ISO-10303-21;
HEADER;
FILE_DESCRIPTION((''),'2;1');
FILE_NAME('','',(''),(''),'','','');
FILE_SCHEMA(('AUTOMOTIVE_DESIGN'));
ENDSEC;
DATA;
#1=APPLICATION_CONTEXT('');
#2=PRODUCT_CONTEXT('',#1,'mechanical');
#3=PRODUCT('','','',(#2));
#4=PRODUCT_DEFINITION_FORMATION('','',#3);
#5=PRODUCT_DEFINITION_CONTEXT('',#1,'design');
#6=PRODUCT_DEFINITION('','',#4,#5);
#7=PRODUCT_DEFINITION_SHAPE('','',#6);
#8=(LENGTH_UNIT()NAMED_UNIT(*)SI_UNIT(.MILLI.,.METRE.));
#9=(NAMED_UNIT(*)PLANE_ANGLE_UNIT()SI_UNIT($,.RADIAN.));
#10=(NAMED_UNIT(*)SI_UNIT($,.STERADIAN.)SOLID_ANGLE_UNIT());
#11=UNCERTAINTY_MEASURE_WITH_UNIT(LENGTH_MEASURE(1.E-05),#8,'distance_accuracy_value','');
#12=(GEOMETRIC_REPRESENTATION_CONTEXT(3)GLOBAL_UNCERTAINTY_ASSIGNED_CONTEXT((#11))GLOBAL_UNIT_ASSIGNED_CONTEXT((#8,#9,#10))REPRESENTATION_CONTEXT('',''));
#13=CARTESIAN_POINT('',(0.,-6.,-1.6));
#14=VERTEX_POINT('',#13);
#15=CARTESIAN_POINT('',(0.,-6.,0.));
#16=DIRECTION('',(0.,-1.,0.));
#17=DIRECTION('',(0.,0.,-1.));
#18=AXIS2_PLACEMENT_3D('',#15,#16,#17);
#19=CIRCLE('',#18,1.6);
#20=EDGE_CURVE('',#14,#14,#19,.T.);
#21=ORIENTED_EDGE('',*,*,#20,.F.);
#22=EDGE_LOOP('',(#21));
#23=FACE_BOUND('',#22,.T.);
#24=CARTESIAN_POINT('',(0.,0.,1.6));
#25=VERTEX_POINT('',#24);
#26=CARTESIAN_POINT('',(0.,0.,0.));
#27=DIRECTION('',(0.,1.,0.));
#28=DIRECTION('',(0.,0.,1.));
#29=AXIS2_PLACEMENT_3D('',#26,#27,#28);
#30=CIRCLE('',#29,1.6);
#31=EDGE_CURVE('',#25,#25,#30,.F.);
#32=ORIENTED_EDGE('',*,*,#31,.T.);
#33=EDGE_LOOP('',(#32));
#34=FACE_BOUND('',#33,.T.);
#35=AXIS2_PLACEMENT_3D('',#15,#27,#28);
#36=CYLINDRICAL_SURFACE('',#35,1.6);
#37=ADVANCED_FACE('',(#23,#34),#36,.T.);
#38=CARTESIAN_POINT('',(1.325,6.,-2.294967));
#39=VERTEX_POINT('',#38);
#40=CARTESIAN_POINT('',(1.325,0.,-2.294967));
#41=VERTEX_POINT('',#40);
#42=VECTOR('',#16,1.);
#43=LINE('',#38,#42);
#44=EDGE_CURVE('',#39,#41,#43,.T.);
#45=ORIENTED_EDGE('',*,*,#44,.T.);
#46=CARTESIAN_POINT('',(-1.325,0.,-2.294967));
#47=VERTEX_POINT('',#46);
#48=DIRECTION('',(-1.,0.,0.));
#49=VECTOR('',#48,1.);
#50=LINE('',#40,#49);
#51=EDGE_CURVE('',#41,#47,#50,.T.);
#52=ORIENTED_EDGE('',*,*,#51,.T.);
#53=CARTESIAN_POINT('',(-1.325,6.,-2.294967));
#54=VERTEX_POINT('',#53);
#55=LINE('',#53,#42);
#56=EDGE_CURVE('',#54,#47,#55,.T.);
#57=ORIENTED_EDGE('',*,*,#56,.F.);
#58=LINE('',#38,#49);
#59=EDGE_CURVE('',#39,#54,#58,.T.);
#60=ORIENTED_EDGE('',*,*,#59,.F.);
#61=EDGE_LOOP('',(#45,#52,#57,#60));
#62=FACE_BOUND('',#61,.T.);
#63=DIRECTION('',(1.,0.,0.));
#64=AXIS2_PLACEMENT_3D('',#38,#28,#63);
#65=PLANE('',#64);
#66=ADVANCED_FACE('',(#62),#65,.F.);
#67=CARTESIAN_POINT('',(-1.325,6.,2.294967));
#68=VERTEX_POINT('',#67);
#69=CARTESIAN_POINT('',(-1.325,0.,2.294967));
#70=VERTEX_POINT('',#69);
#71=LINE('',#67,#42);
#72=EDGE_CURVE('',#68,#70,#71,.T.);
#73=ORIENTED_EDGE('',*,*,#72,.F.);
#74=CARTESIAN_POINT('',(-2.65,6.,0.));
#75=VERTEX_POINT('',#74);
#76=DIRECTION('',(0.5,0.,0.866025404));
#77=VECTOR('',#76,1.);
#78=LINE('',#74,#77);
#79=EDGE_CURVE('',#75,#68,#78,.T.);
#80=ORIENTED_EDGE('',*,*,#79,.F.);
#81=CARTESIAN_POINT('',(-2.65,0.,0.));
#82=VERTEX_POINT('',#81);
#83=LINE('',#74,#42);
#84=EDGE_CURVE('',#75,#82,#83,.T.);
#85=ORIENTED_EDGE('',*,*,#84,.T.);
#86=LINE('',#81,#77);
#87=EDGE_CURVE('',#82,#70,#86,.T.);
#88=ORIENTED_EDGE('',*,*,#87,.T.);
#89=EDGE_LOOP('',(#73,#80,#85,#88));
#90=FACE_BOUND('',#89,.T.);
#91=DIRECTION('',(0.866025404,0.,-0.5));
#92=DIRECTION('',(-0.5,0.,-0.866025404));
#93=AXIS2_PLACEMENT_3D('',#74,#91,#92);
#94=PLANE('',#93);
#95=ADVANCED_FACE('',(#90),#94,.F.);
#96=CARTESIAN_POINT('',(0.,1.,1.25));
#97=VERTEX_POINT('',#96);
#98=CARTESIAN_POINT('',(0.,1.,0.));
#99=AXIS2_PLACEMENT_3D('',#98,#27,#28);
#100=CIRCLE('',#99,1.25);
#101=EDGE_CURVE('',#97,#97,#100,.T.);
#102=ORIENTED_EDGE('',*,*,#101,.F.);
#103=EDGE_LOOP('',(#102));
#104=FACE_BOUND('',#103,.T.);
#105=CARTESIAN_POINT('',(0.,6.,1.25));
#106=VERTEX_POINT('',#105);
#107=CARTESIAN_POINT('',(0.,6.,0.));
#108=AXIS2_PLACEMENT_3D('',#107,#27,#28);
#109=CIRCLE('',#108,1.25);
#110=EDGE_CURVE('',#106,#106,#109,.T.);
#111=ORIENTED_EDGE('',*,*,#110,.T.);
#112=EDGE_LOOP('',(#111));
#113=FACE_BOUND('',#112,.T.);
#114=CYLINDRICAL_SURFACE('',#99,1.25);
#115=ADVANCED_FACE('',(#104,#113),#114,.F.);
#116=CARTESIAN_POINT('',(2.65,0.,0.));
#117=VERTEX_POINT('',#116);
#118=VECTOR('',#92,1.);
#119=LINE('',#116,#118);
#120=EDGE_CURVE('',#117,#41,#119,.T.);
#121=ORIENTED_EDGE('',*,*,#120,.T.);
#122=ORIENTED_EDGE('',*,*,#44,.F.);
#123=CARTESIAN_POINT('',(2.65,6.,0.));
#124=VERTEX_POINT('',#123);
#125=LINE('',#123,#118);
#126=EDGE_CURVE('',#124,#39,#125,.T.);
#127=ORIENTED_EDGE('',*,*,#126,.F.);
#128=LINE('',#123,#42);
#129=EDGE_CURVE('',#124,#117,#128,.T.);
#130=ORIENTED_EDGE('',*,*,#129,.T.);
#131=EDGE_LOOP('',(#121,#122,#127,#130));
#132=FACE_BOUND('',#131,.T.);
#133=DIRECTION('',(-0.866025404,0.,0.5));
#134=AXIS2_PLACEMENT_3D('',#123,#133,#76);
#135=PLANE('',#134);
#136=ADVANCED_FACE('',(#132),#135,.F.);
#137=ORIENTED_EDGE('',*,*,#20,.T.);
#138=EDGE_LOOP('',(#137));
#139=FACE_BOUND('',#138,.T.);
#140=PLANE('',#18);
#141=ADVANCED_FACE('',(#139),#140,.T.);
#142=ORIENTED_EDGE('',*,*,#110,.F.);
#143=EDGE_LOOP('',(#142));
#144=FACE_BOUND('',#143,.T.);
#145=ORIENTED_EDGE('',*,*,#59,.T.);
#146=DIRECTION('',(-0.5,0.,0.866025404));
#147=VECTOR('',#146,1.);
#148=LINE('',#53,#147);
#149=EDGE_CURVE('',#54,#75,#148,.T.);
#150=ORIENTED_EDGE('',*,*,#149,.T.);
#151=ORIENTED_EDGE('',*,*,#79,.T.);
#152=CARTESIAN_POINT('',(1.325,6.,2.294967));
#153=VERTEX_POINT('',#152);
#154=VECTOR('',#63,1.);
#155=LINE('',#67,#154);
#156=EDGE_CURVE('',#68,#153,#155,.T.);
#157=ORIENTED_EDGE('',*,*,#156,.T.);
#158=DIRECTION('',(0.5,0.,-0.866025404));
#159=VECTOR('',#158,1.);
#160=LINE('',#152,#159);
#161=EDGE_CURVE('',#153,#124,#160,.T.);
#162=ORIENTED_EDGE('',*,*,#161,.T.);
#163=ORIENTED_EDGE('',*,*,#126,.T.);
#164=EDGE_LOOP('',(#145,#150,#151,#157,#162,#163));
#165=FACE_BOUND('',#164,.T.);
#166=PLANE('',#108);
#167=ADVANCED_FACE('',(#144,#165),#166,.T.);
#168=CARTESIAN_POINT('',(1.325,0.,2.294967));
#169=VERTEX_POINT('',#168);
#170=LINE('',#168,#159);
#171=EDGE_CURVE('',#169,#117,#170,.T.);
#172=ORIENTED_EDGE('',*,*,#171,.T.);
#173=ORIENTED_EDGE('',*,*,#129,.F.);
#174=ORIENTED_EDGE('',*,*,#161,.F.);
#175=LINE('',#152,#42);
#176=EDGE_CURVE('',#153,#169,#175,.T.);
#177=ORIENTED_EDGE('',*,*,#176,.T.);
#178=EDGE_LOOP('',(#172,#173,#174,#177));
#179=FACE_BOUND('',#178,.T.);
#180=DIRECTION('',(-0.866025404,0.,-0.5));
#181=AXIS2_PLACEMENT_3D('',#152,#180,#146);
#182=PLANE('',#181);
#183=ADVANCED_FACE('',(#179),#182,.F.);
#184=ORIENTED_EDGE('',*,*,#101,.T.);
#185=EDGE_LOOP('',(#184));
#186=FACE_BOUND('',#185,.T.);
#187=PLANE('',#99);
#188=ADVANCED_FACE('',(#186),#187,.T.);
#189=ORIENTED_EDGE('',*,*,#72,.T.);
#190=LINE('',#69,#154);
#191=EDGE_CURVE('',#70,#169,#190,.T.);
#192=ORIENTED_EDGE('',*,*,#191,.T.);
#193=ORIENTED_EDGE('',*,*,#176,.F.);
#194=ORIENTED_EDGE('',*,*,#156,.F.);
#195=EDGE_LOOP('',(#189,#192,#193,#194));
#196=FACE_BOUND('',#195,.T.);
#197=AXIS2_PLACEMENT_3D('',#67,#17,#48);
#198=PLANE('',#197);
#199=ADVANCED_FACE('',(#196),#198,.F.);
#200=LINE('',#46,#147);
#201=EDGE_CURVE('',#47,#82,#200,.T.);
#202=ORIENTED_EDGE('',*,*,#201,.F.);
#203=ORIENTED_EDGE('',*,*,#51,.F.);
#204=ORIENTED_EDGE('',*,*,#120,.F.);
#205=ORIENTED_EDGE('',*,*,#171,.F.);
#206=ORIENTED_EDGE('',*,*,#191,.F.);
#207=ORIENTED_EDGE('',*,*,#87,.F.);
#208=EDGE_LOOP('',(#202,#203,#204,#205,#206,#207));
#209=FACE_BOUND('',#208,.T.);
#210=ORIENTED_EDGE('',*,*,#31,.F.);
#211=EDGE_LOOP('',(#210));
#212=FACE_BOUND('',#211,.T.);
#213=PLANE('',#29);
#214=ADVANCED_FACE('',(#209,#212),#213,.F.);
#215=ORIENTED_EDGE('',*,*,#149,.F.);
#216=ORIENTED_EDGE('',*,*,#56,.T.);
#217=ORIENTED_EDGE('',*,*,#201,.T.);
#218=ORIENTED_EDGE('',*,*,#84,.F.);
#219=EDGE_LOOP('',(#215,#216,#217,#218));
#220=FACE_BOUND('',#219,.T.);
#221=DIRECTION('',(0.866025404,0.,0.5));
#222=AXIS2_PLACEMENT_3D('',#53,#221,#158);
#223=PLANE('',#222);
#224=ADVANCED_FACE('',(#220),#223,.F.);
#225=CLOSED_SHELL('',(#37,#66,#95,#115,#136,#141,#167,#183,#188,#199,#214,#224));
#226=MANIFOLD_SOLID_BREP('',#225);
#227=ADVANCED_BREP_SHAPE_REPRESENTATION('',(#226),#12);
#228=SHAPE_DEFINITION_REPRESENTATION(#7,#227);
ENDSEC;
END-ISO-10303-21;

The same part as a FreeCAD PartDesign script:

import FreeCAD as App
import Part
import Sketcher

V = App.Vector
Q = App.Units.Quantity

doc = App.newDocument("Part")
body = doc.addObject("PartDesign::Body", "Body")

sketch1 = doc.addObject("Sketcher::SketchObject", "Sketch")
body.addObject(sketch1)
sketch1.AttachmentSupport = (doc.XZ_Plane, [""])
sketch1.MapMode = "FlatFace"
sketch1.addGeometry(Part.LineSegment(V(1.3, 2.3, 0), V(2.6, 0, 0)), False)
sketch1.addGeometry(Part.LineSegment(V(2.6, 0, 0), V(1.3, -2.3, 0)), False)
sketch1.addGeometry(Part.LineSegment(V(1.3, -2.3, 0), V(-1.3, -2.3, 0)), False)
sketch1.addGeometry(Part.LineSegment(V(-1.3, -2.3, 0), V(-2.6, 0, 0)), False)
sketch1.addGeometry(Part.LineSegment(V(-2.6, 0, 0), V(-1.3, 2.3, 0)), False)
sketch1.addGeometry(Part.LineSegment(V(-1.3, 2.3, 0), V(1.3, 2.3, 0)), False)
sketch1.addConstraint(Sketcher.Constraint("Coincident", 0, 2, 1, 1))
sketch1.addConstraint(Sketcher.Constraint("Coincident", 1, 2, 2, 1))
sketch1.addConstraint(Sketcher.Constraint("Coincident", 2, 2, 3, 1))
sketch1.addConstraint(Sketcher.Constraint("Coincident", 3, 2, 4, 1))
sketch1.addConstraint(Sketcher.Constraint("Coincident", 4, 2, 5, 1))
sketch1.addConstraint(Sketcher.Constraint("Coincident", 5, 2, 0, 1))
sketch1.addConstraint(Sketcher.Constraint("Horizontal", 2))
sketch1.addConstraint(Sketcher.Constraint("Horizontal", 5))
sketch1.addConstraint(Sketcher.Constraint("Symmetric", 0, 2, 3, 2, -1, 1))
sketch1.addConstraint(Sketcher.Constraint("Symmetric", 1, 2, 4, 2, -1, 1))
sketch1.addConstraint(Sketcher.Constraint("PointOnObject", 0, 2, -1))
sketch1.addConstraint(Sketcher.Constraint("Parallel", 0, 3))
sketch1.addConstraint(Sketcher.Constraint("Vertical", 2, 2, 4, 2))
sketch1.addConstraint(Sketcher.Constraint("Angle", 0, Q("-60 deg")))
sketch1.addConstraint(Sketcher.Constraint("DistanceX", 2, 2, 2, 1, 2.65))
sketch1.addConstraint(Sketcher.Constraint("DistanceX", 3, 2, 0, 2, 5.3))
pad1 = doc.addObject("PartDesign::Pad", "Pad")
body.addObject(pad1)
pad1.Profile = sketch1
pad1.Length = 6
pad1.Reversed = True

sketch2 = doc.addObject("Sketcher::SketchObject", "Sketch001")
body.addObject(sketch2)
sketch2.AttachmentSupport = (doc.XZ_Plane, [""])
sketch2.MapMode = "FlatFace"
sketch2.addGeometry(Part.Circle(V(0, 0, 0), V(0, 0, 1), 1.6), False)
sketch2.addConstraint(Sketcher.Constraint("Coincident", 0, 3, -1, 1))
sketch2.addConstraint(Sketcher.Constraint("Diameter", 0, 3.2))
pad2 = doc.addObject("PartDesign::Pad", "Pad001")
body.addObject(pad2)
pad2.Profile = sketch2
pad2.Length = 6

sketch3 = doc.addObject("Sketcher::SketchObject", "Sketch002")
body.addObject(sketch3)
sketch3.AttachmentSupport = (doc.XZ_Plane, [""])
sketch3.MapMode = "FlatFace"
sketch3.AttachmentOffset = App.Placement(V(0, 0, -6), App.Rotation())
sketch3.addGeometry(Part.Circle(V(0, 0, 0), V(0, 0, 1), 1.2), False)
sketch3.addConstraint(Sketcher.Constraint("Coincident", 0, 3, -1, 1))
sketch3.addConstraint(Sketcher.Constraint("Diameter", 0, 2.5))
pocket1 = doc.addObject("PartDesign::Pocket", "Pocket")
body.addObject(pocket1)
pocket1.Profile = sketch3
pocket1.Length = 5
pocket1.Reversed = True

doc.recompute()
